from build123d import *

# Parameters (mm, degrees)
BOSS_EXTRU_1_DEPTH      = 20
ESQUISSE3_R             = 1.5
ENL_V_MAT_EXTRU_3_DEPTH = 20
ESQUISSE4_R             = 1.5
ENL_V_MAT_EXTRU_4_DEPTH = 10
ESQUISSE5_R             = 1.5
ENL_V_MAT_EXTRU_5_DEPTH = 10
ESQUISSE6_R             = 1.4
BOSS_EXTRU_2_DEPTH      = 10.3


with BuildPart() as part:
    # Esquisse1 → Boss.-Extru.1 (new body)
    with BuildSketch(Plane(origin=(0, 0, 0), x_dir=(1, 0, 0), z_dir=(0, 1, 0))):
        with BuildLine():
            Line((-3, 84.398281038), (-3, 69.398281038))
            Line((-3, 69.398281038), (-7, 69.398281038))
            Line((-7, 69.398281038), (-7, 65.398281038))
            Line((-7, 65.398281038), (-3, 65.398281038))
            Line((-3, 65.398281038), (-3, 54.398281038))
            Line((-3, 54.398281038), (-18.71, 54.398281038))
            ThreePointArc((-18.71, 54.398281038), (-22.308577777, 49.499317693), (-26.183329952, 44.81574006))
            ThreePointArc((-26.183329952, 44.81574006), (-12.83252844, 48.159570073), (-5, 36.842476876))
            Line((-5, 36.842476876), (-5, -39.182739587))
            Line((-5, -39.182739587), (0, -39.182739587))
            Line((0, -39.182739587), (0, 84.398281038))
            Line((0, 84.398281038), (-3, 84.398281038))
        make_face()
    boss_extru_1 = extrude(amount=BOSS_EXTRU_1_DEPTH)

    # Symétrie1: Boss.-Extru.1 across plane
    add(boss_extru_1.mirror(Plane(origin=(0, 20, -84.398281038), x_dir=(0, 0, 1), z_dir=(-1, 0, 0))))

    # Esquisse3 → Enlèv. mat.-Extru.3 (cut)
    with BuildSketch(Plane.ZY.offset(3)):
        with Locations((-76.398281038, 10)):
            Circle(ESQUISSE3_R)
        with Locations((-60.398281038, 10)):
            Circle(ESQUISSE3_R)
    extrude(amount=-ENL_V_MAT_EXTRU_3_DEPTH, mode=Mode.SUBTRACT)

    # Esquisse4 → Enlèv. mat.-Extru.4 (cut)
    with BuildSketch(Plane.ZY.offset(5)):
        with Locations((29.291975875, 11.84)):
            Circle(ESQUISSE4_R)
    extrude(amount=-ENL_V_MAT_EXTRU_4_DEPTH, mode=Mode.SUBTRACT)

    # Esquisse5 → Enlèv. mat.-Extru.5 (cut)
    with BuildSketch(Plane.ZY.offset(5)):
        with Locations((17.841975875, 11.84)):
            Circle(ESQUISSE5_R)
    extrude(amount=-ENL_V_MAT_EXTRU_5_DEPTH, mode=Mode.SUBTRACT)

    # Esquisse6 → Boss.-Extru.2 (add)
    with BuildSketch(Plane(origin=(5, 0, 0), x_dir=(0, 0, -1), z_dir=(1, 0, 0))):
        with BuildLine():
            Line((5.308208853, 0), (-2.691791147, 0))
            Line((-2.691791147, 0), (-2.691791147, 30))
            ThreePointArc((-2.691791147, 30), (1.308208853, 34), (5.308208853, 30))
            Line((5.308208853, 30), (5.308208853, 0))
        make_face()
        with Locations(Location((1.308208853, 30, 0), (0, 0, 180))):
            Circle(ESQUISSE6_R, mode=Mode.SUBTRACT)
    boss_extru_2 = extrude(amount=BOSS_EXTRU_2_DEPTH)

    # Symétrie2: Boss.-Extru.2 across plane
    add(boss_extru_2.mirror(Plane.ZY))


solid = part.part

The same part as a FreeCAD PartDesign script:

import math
import FreeCAD as App
import Part
import Sketcher
from FreeCAD import Vector
Q = App.Units.Quantity

doc = App.newDocument("Part")
body = doc.addObject("PartDesign::Body", "Body")

sketch1 = body.newObject("Sketcher::SketchObject", "Sketch")
sketch1.AttachmentSupport = (doc.getObject("XZ_Plane"), [""])
sketch1.MapMode = "FlatFace"
sketch1.addGeometry(Part.LineSegment(Vector(-3, -84.398281, 0), Vector(-3, -69.398281, 0)), False)
sketch1.addGeometry(Part.LineSegment(Vector(-3, -69.398281, 0), Vector(-7, -69.398281, 0)), False)
sketch1.addGeometry(Part.LineSegment(Vector(-7, -69.398281, 0), Vector(-7, -65.398281, 0)), False)
sketch1.addGeometry(Part.LineSegment(Vector(-7, -65.398281, 0), Vector(-3, -65.398281, 0)), False)
sketch1.addGeometry(Part.LineSegment(Vector(-3, -65.398281, 0), Vector(-3, -54.398281, 0)), False)
sketch1.addGeometry(Part.LineSegment(Vector(-3, -54.398281, 0), Vector(-18.71, -54.398281, 0)), False)
sketch1.addGeometry(Part.ArcOfCircle(Part.Circle(Vector(-105.5, -114.379494, 0), Vector(0, 0, 1), 105.5), math.radians(34.648638), math.radians(41.252001)), False)
sketch1.addGeometry(Part.ArcOfCircle(Part.Circle(Vector(-17.092206, -36.842477, 0), Vector(0, 0, 1), 12.092206), math.radians(-138.747999), math.radians(0)), False)
sketch1.addGeometry(Part.LineSegment(Vector(-5, -36.842477, 0), Vector(-5, 39.18274, 0)), False)
sketch1.addGeometry(Part.LineSegment(Vector(-5, 39.18274, 0), Vector(0, 39.18274, 0)), False)
sketch1.addGeometry(Part.LineSegment(Vector(0, 39.18274, 0), Vector(0, -84.398281, 0)), False)
sketch1.addGeometry(Part.LineSegment(Vector(0, -84.398281, 0), Vector(-3, -84.398281, 0)), False)
sketch1.addConstraint(Sketcher.Constraint("Coincident", 0, 2, 1, 1))
sketch1.addConstraint(Sketcher.Constraint("Coincident", 1, 2, 2, 1))
sketch1.addConstraint(Sketcher.Constraint("Coincident", 2, 2, 3, 1))
sketch1.addConstraint(Sketcher.Constraint("Coincident", 3, 2, 4, 1))
sketch1.addConstraint(Sketcher.Constraint("Coincident", 4, 2, 5, 1))
sketch1.addConstraint(Sketcher.Constraint("Coincident", 5, 2, 6, 1))
sketch1.addConstraint(Sketcher.Constraint("Tangent", 6, 2, 7, 1))
sketch1.addConstraint(Sketcher.Constraint("Tangent", 7, 2, 8, 1))
sketch1.addConstraint(Sketcher.Constraint("Coincident", 8, 2, 9, 1))
sketch1.addConstraint(Sketcher.Constraint("Coincident", 9, 2, 10, 1))
sketch1.addConstraint(Sketcher.Constraint("Coincident", 10, 2, 11, 1))
sketch1.addConstraint(Sketcher.Constraint("Coincident", 11, 2, 0, 1))
sketch1.addConstraint(Sketcher.Constraint("Vertical", 0))
sketch1.addConstraint(Sketcher.Constraint("Horizontal", 1))
sketch1.addConstraint(Sketcher.Constraint("Vertical", 2))
sketch1.addConstraint(Sketcher.Constraint("Horizontal", 3))
sketch1.addConstraint(Sketcher.Constraint("Vertical", 4))
sketch1.addConstraint(Sketcher.Constraint("Horizontal", 5))
sketch1.addConstraint(Sketcher.Constraint("Vertical", 8))
sketch1.addConstraint(Sketcher.Constraint("Horizontal", 9))
sketch1.addConstraint(Sketcher.Constraint("Vertical", 10))
sketch1.addConstraint(Sketcher.Constraint("Horizontal", 11))
sketch1.addConstraint(Sketcher.Constraint("PointOnObject", 9, 2, -2))
sketch1.addConstraint(Sketcher.Constraint("Vertical", 0, 2, 3, 2))
sketch1.addConstraint(Sketcher.Constraint("Equal", 3, 2))
sketch1.addConstraint(Sketcher.Constraint("Radius", 6, Q("105.5 mm")))
sketch1.addConstraint(Sketcher.Constraint("DistanceX", 1, 2, 1, 1, Q("4 mm")))
sketch1.addConstraint(Sketcher.Constraint("DistanceX", 9, 1, 9, 2, Q("5 mm")))
sketch1.addConstraint(Sketcher.Constraint("DistanceX", 11, 2, 11, 1, Q("3 mm")))
sketch1.addConstraint(Sketcher.Constraint("DistanceY", 0, 1, 0, 2, Q("15 mm")))
sketch1.addConstraint(Sketcher.Constraint("DistanceY", 4, 1, 4, 2, Q("11 mm")))
sketch1.addConstraint(Sketcher.Constraint("DistanceX", 5, 2, 5, 1, Q("15.71 mm")))
sketch1.addConstraint(Sketcher.Constraint("DistanceX", 6, 3, -1, 1, Q("105.5 mm")))
sketch1.addConstraint(Sketcher.Constraint("Radius", 7, Q("12.092206 mm")))
sketch1.addConstraint(Sketcher.Constraint("DistanceY", 10, 2, 10, 1, Q("123.581021 mm")))
sketch1.addConstraint(Sketcher.Constraint("DistanceY", 0, 2, -1, 1, Q("69.398281 mm")))
pad1 = body.newObject("PartDesign::Pad", "Pad")
pad1.Profile = sketch1
pad1.Length = 20
pad1.Reversed = True
doc.recompute()

mirrored = body.newObject("PartDesign::Mirrored", "Mirrored")
mirrored.Originals = [pad1]
mirrored.MirrorPlane = (doc.getObject("YZ_Plane"), [""])
body.Tip = mirrored

sketch2 = body.newObject("Sketcher::SketchObject", "Sketch001")
sketch2.AttachmentSupport = (doc.getObject("YZ_Plane"), [""])
sketch2.MapMode = "FlatFace"
sketch2.AttachmentOffset = App.Placement(Vector(0, 0, -3), App.Rotation())
sketch2.addGeometry(Part.Circle(Vector(10, -76.398281, 0), Vector(0, 0, 1), 1.5), False)
sketch2.addGeometry(Part.Circle(Vector(10, -60.398281, 0), Vector(0, 0, 1), 1.5), False)
sketch2.addConstraint(Sketcher.Constraint("Equal", 0, 1))
sketch2.addConstraint(Sketcher.Constraint("Vertical", 0, 3, 1, 3))
sketch2.addConstraint(Sketcher.Constraint("Diameter", 0, Q("3 mm")))
sketch2.addConstraint(Sketcher.Constraint("DistanceX", -1, 1, 0, 3, Q("10 mm")))
sketch2.addConstraint(Sketcher.Constraint("DistanceY", 0, 3, 1, 3, Q("16 mm")))
sketch2.addConstraint(Sketcher.Constraint("DistanceY", 0, 3, -1, 1, Q("76.398281 mm")))
pocket1 = body.newObject("PartDesign::Pocket", "Pocket")
pocket1.Profile = sketch2
pocket1.Length = 20
pocket1.Reversed = True

sketch3 = body.newObject("Sketcher::SketchObject", "Sketch002")
sketch3.AttachmentSupport = (doc.getObject("YZ_Plane"), [""])
sketch3.MapMode = "FlatFace"
sketch3.AttachmentOffset = App.Placement(Vector(0, 0, -5), App.Rotation())
sketch3.addGeometry(Part.Circle(Vector(11.84, 29.291976, 0), Vector(0, 0, 1), 1.5), False)
sketch3.addConstraint(Sketcher.Constraint("Diameter", 0, Q("3 mm")))
sketch3.addConstraint(Sketcher.Constraint("DistanceX", -1, 1, 0, 3, Q("11.84 mm")))
sketch3.addConstraint(Sketcher.Constraint("DistanceY", -1, 1, 0, 3, Q("29.291976 mm")))
pocket2 = body.newObject("PartDesign::Pocket", "Pocket001")
pocket2.Profile = sketch3
pocket2.Length = 10
pocket2.Reversed = True

sketch4 = body.newObject("Sketcher::SketchObject", "Sketch003")
sketch4.AttachmentSupport = (doc.getObject("YZ_Plane"), [""])
sketch4.MapMode = "FlatFace"
sketch4.AttachmentOffset = App.Placement(Vector(0, 0, -5), App.Rotation())
sketch4.addGeometry(Part.Circle(Vector(11.84, 17.841976, 0), Vector(0, 0, 1), 1.5), False)
sketch4.addConstraint(Sketcher.Constraint("Diameter", 0, Q("3 mm")))
sketch4.addConstraint(Sketcher.Constraint("DistanceX", -1, 1, 0, 3, Q("11.84 mm")))
sketch4.addConstraint(Sketcher.Constraint("DistanceY", -1, 1, 0, 3, Q("17.841976 mm")))
pocket3 = body.newObject("PartDesign::Pocket", "Pocket002")
pocket3.Profile = sketch4
pocket3.Length = 10
pocket3.Reversed = True

sketch5 = body.newObject("Sketcher::SketchObject", "Sketch004")
sketch5.AttachmentSupport = (doc.getObject("YZ_Plane"), [""])
sketch5.MapMode = "FlatFace"
sketch5.AttachmentOffset = App.Placement(Vector(0, 0, 5), App.Rotation())
sketch5.addGeometry(Part.LineSegment(Vector(0, 2.691791, 0), Vector(0, -5.308209, 0)), False)
sketch5.addGeometry(Part.LineSegment(Vector(0, -5.308209, 0), Vector(30, -5.308209, 0)), False)
sketch5.addGeometry(Part.ArcOfCircle(Part.Circle(Vector(30, -1.308209, 0), Vector(0, 0, 1), 4), math.radians(-90), math.radians(90)), False)
sketch5.addGeometry(Part.LineSegment(Vector(30, 2.691791, 0), Vector(0, 2.691791, 0)), False)
sketch5.addGeometry(Part.Circle(Vector(30, -1.308209, 0), Vector(0, 0, 1), 1.4), False)
sketch5.addConstraint(Sketcher.Constraint("Coincident", 0, 2, 1, 1))
sketch5.addConstraint(Sketcher.Constraint("Tangent", 1, 2, 2, 1))
sketch5.addConstraint(Sketcher.Constraint("Tangent", 2, 2, 3, 1))
sketch5.addConstraint(Sketcher.Constraint("Coincident", 3, 2, 0, 1))
sketch5.addConstraint(Sketcher.Constraint("Vertical", 0))
sketch5.addConstraint(Sketcher.Constraint("Horizontal", 1))
sketch5.addConstraint(Sketcher.Constraint("Horizontal", 3))
sketch5.addConstraint(Sketcher.Constraint("Coincident", 4, 3, 2, 3))
sketch5.addConstraint(Sketcher.Constraint("PointOnObject", 0, 2, -2))
sketch5.addConstraint(Sketcher.Constraint("Radius", 2, Q("4 mm")))
sketch5.addConstraint(Sketcher.Constraint("Diameter", 4, Q("2.8 mm")))
sketch5.addConstraint(Sketcher.Constraint("DistanceX", 1, 1, 1, 2, Q("30 mm")))
sketch5.addConstraint(Sketcher.Constraint("DistanceY", 2, 3, -1, 1, Q("1.308209 mm")))
pad2 = body.newObject("PartDesign::Pad", "Pad001")
pad2.Profile = sketch5
pad2.Length = 10.3
doc.recompute()

mirrored2 = body.newObject("PartDesign::Mirrored", "Mirrored001")
mirrored2.Originals = [pad2]
mirrored2.MirrorPlane = (doc.getObject("YZ_Plane"), [""])
body.Tip = mirrored2

doc.recompute()
